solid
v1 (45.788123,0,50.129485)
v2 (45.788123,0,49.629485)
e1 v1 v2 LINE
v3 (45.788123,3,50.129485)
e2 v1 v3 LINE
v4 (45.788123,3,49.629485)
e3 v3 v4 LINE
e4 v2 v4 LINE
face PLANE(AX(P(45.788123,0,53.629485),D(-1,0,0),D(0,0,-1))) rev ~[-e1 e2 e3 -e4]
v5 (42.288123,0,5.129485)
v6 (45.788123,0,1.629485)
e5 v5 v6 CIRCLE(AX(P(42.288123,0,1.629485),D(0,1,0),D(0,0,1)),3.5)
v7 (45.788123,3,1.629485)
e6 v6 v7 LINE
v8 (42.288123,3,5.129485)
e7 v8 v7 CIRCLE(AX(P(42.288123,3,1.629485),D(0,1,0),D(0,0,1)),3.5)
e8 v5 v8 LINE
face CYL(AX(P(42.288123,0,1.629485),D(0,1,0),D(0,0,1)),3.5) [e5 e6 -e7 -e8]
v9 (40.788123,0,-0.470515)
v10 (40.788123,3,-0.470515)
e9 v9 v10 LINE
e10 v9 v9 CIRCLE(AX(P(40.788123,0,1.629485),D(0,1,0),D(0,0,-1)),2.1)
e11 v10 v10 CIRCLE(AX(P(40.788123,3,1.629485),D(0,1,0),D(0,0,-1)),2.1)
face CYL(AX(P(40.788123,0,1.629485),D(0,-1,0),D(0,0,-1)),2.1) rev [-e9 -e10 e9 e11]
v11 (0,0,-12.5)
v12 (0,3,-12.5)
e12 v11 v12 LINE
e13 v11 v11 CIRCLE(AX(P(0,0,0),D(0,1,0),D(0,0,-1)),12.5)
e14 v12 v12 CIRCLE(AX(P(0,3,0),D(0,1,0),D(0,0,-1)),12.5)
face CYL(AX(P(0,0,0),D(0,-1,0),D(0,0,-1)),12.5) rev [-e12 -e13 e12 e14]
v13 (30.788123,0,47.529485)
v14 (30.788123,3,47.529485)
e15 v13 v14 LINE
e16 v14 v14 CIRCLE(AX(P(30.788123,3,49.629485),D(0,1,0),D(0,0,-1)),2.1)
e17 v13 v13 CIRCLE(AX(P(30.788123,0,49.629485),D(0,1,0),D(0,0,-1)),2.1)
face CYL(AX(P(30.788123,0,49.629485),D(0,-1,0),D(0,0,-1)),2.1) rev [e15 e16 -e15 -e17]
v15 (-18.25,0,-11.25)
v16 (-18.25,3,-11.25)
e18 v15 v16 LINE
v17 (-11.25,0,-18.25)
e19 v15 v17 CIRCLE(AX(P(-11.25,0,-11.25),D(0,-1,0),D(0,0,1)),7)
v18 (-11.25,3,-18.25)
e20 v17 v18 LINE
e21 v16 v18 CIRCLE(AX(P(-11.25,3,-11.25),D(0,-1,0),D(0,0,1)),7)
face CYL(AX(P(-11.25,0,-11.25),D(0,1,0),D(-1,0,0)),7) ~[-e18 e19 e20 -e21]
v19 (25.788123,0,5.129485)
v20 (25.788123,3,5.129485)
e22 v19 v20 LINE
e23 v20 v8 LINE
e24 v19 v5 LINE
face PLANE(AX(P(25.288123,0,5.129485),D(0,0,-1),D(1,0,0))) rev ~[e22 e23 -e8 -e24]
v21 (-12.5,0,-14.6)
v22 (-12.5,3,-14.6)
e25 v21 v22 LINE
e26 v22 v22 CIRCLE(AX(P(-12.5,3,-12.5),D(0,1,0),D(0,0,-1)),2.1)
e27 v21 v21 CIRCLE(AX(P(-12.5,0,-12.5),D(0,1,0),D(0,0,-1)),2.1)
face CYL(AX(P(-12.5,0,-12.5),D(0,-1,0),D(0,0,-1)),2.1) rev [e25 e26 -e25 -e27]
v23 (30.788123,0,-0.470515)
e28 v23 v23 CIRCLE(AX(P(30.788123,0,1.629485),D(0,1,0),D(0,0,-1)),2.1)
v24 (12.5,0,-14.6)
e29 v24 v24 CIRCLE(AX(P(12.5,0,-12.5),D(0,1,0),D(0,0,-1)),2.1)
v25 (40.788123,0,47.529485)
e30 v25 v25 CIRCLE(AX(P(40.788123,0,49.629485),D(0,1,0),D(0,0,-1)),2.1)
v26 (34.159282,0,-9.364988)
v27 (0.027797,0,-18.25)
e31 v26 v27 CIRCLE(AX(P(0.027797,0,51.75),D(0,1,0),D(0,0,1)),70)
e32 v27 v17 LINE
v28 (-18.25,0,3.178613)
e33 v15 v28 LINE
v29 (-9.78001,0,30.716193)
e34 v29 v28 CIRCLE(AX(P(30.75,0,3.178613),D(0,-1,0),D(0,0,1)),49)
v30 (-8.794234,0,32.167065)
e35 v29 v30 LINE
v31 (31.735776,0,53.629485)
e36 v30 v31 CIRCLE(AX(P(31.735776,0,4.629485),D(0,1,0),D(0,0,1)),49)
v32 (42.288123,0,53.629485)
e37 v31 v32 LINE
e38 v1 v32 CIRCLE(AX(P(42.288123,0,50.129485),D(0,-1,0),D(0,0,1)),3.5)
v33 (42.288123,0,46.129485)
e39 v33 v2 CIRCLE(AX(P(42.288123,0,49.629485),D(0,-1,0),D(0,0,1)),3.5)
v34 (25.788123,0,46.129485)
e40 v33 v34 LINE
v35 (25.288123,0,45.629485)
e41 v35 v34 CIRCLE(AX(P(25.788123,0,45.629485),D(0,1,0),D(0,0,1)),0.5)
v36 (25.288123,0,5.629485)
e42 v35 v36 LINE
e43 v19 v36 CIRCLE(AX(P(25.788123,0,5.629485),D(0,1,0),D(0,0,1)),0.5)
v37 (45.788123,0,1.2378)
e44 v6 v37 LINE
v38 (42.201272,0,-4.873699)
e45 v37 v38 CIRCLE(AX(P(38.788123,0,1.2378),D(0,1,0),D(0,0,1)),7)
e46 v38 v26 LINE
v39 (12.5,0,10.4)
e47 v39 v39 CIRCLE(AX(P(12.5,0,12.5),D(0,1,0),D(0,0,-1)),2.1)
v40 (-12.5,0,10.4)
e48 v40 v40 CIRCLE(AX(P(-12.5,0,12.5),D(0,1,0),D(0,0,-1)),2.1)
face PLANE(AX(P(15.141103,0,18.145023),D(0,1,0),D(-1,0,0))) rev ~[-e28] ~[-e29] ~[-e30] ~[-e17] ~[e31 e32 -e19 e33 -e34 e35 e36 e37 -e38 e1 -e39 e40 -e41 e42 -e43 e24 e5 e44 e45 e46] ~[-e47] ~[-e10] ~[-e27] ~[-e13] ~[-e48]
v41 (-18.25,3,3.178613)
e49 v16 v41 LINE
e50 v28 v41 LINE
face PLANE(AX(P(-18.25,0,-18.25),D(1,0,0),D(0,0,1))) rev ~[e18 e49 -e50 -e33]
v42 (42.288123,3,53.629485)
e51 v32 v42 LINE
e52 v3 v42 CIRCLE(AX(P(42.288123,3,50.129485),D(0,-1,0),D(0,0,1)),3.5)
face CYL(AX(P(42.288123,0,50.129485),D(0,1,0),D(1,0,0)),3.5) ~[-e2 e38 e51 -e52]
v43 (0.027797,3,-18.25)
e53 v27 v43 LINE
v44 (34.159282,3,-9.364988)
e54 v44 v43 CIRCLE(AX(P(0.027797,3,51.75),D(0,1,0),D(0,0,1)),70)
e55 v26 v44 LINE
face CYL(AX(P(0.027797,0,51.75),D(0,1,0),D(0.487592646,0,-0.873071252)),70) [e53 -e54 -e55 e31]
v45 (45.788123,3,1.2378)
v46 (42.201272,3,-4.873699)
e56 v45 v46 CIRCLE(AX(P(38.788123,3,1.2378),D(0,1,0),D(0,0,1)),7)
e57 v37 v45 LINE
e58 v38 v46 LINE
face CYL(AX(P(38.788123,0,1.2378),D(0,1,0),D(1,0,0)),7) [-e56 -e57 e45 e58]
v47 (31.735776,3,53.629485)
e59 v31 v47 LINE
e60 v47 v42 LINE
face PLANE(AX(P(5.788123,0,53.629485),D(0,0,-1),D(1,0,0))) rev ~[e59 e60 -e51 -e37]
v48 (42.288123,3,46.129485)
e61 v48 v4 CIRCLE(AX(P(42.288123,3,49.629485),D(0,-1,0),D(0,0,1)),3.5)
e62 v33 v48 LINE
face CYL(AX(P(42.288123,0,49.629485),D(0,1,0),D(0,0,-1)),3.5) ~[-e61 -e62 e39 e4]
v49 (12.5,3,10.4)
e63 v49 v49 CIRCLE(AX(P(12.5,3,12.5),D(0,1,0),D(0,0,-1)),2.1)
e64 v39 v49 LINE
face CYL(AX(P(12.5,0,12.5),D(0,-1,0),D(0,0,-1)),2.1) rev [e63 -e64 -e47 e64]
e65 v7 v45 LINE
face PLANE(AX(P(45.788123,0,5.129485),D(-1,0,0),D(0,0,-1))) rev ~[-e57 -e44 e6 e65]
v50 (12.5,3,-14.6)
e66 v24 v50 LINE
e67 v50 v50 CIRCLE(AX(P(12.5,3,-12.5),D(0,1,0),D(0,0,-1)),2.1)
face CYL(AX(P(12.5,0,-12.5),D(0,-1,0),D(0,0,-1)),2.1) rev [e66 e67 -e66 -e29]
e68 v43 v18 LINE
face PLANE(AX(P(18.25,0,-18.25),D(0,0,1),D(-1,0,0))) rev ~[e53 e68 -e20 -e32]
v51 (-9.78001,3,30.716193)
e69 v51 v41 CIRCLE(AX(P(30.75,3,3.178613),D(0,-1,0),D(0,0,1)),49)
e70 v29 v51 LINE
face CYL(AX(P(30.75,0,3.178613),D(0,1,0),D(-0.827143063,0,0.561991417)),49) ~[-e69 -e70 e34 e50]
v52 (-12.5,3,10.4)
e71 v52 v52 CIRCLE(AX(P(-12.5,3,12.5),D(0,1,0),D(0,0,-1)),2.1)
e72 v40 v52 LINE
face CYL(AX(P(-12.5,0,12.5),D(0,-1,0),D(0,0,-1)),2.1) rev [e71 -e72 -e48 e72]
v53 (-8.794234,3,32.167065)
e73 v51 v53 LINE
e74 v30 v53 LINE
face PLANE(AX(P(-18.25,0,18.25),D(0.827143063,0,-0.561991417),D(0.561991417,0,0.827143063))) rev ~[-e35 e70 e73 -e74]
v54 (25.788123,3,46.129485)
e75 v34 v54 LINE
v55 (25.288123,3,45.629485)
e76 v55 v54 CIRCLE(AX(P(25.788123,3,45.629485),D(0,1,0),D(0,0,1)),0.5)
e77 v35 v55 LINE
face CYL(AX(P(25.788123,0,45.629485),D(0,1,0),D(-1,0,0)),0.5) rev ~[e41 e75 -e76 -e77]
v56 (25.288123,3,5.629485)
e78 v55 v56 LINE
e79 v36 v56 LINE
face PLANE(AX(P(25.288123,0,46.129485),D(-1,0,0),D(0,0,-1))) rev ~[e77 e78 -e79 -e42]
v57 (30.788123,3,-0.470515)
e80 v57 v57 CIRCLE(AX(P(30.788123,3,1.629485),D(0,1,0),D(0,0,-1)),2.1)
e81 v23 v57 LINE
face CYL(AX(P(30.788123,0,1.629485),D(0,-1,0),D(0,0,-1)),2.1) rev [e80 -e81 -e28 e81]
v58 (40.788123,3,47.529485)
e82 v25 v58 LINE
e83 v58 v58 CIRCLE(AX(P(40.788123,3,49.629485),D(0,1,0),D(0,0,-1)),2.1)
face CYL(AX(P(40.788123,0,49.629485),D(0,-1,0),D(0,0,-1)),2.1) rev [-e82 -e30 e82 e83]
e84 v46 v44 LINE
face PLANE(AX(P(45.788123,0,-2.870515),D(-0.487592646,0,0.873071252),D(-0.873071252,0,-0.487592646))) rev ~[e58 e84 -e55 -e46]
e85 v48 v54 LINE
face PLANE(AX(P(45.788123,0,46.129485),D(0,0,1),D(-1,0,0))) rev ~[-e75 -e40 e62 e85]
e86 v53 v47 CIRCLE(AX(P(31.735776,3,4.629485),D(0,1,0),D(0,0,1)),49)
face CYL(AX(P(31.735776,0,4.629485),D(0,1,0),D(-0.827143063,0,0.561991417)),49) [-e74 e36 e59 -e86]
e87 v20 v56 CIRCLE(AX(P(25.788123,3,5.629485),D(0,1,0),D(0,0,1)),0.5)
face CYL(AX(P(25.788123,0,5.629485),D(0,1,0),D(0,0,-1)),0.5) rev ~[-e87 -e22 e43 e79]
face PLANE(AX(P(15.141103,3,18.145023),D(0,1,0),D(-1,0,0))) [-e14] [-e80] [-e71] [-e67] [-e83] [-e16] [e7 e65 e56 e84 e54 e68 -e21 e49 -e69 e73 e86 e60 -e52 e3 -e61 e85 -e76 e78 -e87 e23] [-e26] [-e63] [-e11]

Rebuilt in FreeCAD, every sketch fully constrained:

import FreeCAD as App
import Part
import Sketcher
Q = App.Units.Quantity


def edges_at(feature, points):
    """Names of the edges that pass closest to the given points."""
    edges = feature.Shape.Edges
    near = lambda p: min(range(len(edges)), key=lambda i: edges[i].distToShape(Part.Vertex(*p))[0])
    return sorted({f"Edge{near(p) + 1}" for p in points})


def add_polygon(sketch, points):
    """Adds a closed chain of lines whose ends are joined by coincident constraints."""
    first, n = sketch.GeometryCount, len(points)
    for a, b in zip(points, points[1:] + points[:1]):
        sketch.addGeometry(Part.LineSegment(App.Vector(*a, 0), App.Vector(*b, 0)), False)
    for i in range(n):
        sketch.addConstraint(Sketcher.Constraint("Coincident", first + i, 2, first + (i + 1) % n, 1))

doc = App.newDocument("Part")
params = doc.addObject("Spreadsheet::Sheet", "Params")
for row, (alias, value) in enumerate([
    ("sketch1_diameter", "25 mm"),
    ("sketch1_diameter2", "4.2 mm"),
    ("sketch1_width", "40 mm"),
    ("sketch1_height", "41 mm"),
    ("sketch1_height2", "8 mm"),
    ("pad1_length", "3 mm"),
    ("fillet_radius", "0.5 mm"),
    ("fillet2_radius", "3.5 mm"),
    ("fillet3_radius", "7 mm"),
    ("fillet4_radius", "70 mm"),
    ("fillet5_radius", "49 mm"),
    ("fillet6_radius", "49 mm"),
    ("fillet7_radius", "7 mm"),
], start=1):
    params.set(f"A{row}", alias)
    params.set(f"B{row}", "=" + value)
    params.setAlias(f"B{row}", alias)

body = doc.addObject("PartDesign::Body", "Body")

# Sketch on XZ plane
sketch1 = body.newObject("Sketcher::SketchObject", "Sketch")
sketch1.AttachmentSupport = (doc.getObject("XZ_Plane"), [""])
sketch1.MapMode = "FlatFace"
add_polygon(sketch1, [(18.2, -18.2), (-18.2, -18.2), (-18.2, 18.2), (5.8, 53.6), (45.8, 53.6), (45.8, 46.1), (25.3, 46.1), (25.3, 5.1), (45.8, 5.1), (45.8, -2.9)])  # lines 0-9
sketch1.addGeometry(Part.Circle(App.Vector(40.8, 1.6, 0), App.Vector(0, 0, 1), 2.1), False)  # 10
sketch1.addGeometry(Part.Circle(App.Vector(30.8, 1.6, 0), App.Vector(0, 0, 1), 2.1), False)  # 11
sketch1.addGeometry(Part.Circle(App.Vector(12.5, -12.5, 0), App.Vector(0, 0, 1), 2.1), False)  # 12
sketch1.addGeometry(Part.Circle(App.Vector(0, 0, 0), App.Vector(0, 0, 1), 12.5), False)  # 13
sketch1.addGeometry(Part.Circle(App.Vector(-12.5, -12.5, 0), App.Vector(0, 0, 1), 2.1), False)  # 14
sketch1.addGeometry(Part.Circle(App.Vector(12.5, 12.5, 0), App.Vector(0, 0, 1), 2.1), False)  # 15
sketch1.addGeometry(Part.Circle(App.Vector(-12.5, 12.5, 0), App.Vector(0, 0, 1), 2.1), False)  # 16
sketch1.addGeometry(Part.Circle(App.Vector(40.8, 49.6, 0), App.Vector(0, 0, 1), 2.1), False)  # 17
sketch1.addGeometry(Part.Circle(App.Vector(30.8, 49.6, 0), App.Vector(0, 0, 1), 2.1), False)  # 18
sketch1.addConstraint([
    Sketcher.Constraint("Horizontal", 0),
    Sketcher.Constraint("Vertical", 1),
    Sketcher.Constraint("Horizontal", 3),
    Sketcher.Constraint("Vertical", 4),
    Sketcher.Constraint("Horizontal", 5),
    Sketcher.Constraint("Vertical", 6),
    Sketcher.Constraint("Horizontal", 7),
    Sketcher.Constraint("Vertical", 8),
    Sketcher.Constraint("Coincident", 13, 3, -1, 1),
    Sketcher.Constraint("Equal", 10, 11),
    Sketcher.Constraint("Equal", 11, 12),
    Sketcher.Constraint("Equal", 12, 14),
    Sketcher.Constraint("Equal", 14, 15),
    Sketcher.Constraint("Equal", 15, 16),
    Sketcher.Constraint("Equal", 16, 17),
    Sketcher.Constraint("Equal", 17, 18),
    Sketcher.Constraint("Symmetric", 14, 3, 15, 3, -1, 1),
    Sketcher.Constraint("Symmetric", 12, 3, 16, 3, -1, 1),
    Sketcher.Constraint("Symmetric", 1, 2, 9, 2, -1, 1),
    Sketcher.Constraint("Symmetric", 12, 3, 14, 3, -2),
    Sketcher.Constraint("Horizontal", 10, 3, 11, 3),
    Sketcher.Constraint("Horizontal", 17, 3, 18, 3),
    Sketcher.Constraint("Vertical", 10, 3, 17, 3),
    Sketcher.Constraint("Vertical", 11, 3, 18, 3),
    Sketcher.Constraint("Vertical", 4, 2, 7, 2),
    Sketcher.Constraint("Equal", 0, 1),
    Sketcher.Constraint("Diameter", 13, Q("25 mm")),
    Sketcher.Constraint("Diameter", 10, Q("4.2 mm")),
    Sketcher.Constraint("DistanceX", 3, 1, 3, 2, Q("40 mm")),
    Sketcher.Constraint("DistanceY", 6, 2, 6, 1, Q("41 mm")),
    Sketcher.Constraint("DistanceY", 8, 2, 8, 1, Q("8 mm")),
    Sketcher.Constraint("DistanceX", 0, 2, 0, 1, Q("36.5 mm")),
    Sketcher.Constraint("DistanceX", 5, 2, 5, 1, Q("20.5 mm")),
    Sketcher.Constraint("DistanceY", 4, 2, 4, 1, Q("7.5 mm")),
    Sketcher.Constraint("DistanceX", 11, 3, 10, 3, Q("10 mm")),
    Sketcher.Constraint("DistanceX", 14, 3, 12, 3, Q("25 mm")),
    Sketcher.Constraint("DistanceY", 12, 3, 15, 3, Q("25 mm")),
    Sketcher.Constraint("DistanceY", 10, 3, 17, 3, Q("48 mm")),
    Sketcher.Constraint("DistanceX", 2, 2, 18, 3, Q("25 mm")),
    Sketcher.Constraint("DistanceY", 18, 3, 2, 2, Q("4 mm")),
    Sketcher.Constraint("Distance", 2, Q("42.773115 mm")),
    Sketcher.Constraint("Distance", 9, Q("31.541668 mm")),
])
sketch1.setExpression("Constraints[36]", "Params.sketch1_diameter")
sketch1.setExpression("Constraints[37]", "Params.sketch1_diameter2")
sketch1.setExpression("Constraints[38]", "Params.sketch1_width")
sketch1.setExpression("Constraints[39]", "Params.sketch1_height")
sketch1.setExpression("Constraints[40]", "Params.sketch1_height2")
pad1 = body.newObject("PartDesign::Pad", "Pad")
pad1.Profile = sketch1
pad1.setExpression("Length", "Params.pad1_length")
pad1.Reversed = True
doc.recompute()

fillet = body.newObject("PartDesign::Fillet", "Fillet")
fillet.Base = (pad1, edges_at(pad1, [(25.288, 1.5, 5.129), (25.288, 1.5, 46.129)]))
fillet.setExpression("Radius", "Params.fillet_radius")
doc.recompute()

fillet2 = body.newObject("PartDesign::Fillet", "Fillet001")
fillet2.Base = (fillet, edges_at(fillet, [(45.788, 1.5, 5.129), (45.788, 1.5, 46.129), (45.788, 1.5, 53.629)]))
fillet2.setExpression("Radius", "Params.fillet2_radius")
doc.recompute()

fillet3 = body.newObject("PartDesign::Fillet", "Fillet002")
fillet3.Base = (fillet2, edges_at(fillet2, [(45.788, 1.5, -2.871)]))
fillet3.setExpression("Radius", "Params.fillet3_radius")
doc.recompute()

fillet4 = body.newObject("PartDesign::Fillet", "Fillet003")
fillet4.Base = (fillet3, edges_at(fillet3, [(18.25, 1.5, -18.25)]))
fillet4.setExpression("Radius", "Params.fillet4_radius")
doc.recompute()

fillet5 = body.newObject("PartDesign::Fillet", "Fillet004")
fillet5.Base = (fillet4, edges_at(fillet4, [(5.788, 1.5, 53.629)]))
fillet5.setExpression("Radius", "Params.fillet5_radius")
doc.recompute()

fillet6 = body.newObject("PartDesign::Fillet", "Fillet005")
fillet6.Base = (fillet5, edges_at(fillet5, [(-18.25, 1.5, 18.25)]))
fillet6.setExpression("Radius", "Params.fillet6_radius")
doc.recompute()

fillet7 = body.newObject("PartDesign::Fillet", "Fillet006")
fillet7.Base = (fillet6, edges_at(fillet6, [(-18.25, 1.5, -18.25)]))
fillet7.setExpression("Radius", "Params.fillet7_radius")

doc.recompute()
